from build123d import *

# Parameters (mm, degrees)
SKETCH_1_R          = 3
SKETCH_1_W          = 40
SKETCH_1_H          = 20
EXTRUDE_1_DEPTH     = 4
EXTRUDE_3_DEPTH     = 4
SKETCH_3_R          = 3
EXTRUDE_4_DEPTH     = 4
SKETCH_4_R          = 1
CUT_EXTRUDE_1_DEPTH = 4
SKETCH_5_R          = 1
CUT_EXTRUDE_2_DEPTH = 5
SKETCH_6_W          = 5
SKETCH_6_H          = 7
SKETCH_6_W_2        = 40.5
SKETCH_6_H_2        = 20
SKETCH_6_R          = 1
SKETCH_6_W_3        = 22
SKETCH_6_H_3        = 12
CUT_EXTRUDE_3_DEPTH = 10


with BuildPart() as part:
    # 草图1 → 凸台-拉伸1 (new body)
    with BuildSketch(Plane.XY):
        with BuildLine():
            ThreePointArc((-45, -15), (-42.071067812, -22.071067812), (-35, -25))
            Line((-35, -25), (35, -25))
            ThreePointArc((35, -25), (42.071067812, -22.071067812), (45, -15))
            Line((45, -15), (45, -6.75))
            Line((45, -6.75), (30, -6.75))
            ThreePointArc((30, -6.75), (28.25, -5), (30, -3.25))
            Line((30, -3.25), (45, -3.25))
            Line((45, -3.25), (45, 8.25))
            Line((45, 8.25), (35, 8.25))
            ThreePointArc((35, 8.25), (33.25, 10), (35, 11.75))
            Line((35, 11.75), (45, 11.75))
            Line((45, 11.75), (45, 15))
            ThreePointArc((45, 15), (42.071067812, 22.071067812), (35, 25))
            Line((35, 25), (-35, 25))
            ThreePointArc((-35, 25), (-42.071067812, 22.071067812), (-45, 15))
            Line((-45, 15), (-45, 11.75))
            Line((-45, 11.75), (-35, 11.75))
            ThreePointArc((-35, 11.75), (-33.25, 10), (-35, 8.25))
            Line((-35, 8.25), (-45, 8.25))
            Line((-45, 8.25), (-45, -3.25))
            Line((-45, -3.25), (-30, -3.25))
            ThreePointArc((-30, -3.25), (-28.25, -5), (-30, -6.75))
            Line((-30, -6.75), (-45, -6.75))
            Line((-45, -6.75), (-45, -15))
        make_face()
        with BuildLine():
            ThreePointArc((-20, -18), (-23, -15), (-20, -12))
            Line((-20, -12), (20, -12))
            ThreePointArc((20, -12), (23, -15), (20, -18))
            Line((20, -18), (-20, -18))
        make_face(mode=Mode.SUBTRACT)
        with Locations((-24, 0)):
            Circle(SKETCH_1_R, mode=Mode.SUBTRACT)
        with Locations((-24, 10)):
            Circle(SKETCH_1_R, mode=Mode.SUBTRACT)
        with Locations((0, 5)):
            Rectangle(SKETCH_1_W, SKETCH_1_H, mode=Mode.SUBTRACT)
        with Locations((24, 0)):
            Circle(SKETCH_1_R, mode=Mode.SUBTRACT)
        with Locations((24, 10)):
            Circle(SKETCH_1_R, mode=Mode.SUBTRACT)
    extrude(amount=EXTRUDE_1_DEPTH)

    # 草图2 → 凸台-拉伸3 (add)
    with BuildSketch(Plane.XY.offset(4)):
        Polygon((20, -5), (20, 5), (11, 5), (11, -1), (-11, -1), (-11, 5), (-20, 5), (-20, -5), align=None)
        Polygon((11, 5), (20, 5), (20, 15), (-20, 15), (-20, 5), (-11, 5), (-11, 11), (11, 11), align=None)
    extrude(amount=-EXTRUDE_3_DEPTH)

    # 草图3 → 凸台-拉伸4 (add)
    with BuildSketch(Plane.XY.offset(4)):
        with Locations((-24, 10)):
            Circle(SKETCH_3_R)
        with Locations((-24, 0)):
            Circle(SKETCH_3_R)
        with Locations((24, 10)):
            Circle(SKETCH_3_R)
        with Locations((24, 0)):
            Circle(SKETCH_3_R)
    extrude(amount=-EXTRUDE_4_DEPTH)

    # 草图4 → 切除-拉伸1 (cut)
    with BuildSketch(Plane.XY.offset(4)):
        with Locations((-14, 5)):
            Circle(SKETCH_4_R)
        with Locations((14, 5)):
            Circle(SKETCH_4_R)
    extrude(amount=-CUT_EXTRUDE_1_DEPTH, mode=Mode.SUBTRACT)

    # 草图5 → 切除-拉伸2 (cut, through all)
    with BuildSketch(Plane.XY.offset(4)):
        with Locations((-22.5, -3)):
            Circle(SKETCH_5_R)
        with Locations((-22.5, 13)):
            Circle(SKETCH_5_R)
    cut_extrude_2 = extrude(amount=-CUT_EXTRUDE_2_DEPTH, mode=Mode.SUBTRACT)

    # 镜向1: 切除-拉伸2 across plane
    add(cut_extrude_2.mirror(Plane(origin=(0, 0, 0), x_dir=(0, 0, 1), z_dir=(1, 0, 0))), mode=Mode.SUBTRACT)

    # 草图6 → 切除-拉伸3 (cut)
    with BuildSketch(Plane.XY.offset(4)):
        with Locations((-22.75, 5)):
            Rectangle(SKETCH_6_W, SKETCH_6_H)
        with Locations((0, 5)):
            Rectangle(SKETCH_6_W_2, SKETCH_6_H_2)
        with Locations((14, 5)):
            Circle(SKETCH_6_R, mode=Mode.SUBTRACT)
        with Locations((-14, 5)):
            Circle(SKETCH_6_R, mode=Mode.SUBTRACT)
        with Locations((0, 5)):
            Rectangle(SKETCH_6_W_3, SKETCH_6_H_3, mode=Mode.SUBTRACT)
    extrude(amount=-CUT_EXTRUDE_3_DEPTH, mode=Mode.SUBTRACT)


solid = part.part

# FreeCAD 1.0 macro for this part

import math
import FreeCAD as App
import Part
import Sketcher
from FreeCAD import Vector
Q = App.Units.Quantity

doc = App.newDocument("Part")
body = doc.addObject("PartDesign::Body", "Body")

sketch1 = body.newObject("Sketcher::SketchObject", "Sketch")
sketch1.AttachmentSupport = (doc.getObject("XY_Plane"), [""])
sketch1.MapMode = "FlatFace"
sketch1.addGeometry([
    Part.ArcOfCircle(Part.Circle(Vector(-35, -15, 0), Vector(0, 0, 1), 10), math.radians(180), math.radians(270)),
    Part.LineSegment(Vector(-35, -25, 0), Vector(35, -25, 0)),
    Part.ArcOfCircle(Part.Circle(Vector(35, -15, 0), Vector(0, 0, 1), 10), math.radians(-90), math.radians(0)),
    Part.LineSegment(Vector(45, -15, 0), Vector(45, -6.8, 0)),
    Part.LineSegment(Vector(45, -6.8, 0), Vector(30, -6.8, 0)),
    Part.ArcOfCircle(Part.Circle(Vector(30, -5, 0), Vector(0, 0, 1), 1.8), math.radians(90), math.radians(270)),
    Part.LineSegment(Vector(30, -3.2, 0), Vector(45, -3.2, 0)),
    Part.LineSegment(Vector(45, -3.2, 0), Vector(45, 8.2, 0)),
    Part.LineSegment(Vector(45, 8.2, 0), Vector(35, 8.2, 0)),
    Part.ArcOfCircle(Part.Circle(Vector(35, 10, 0), Vector(0, 0, 1), 1.8), math.radians(90), math.radians(270)),
    Part.LineSegment(Vector(35, 11.8, 0), Vector(45, 11.8, 0)),
    Part.LineSegment(Vector(45, 11.8, 0), Vector(45, 15, 0)),
    Part.ArcOfCircle(Part.Circle(Vector(35, 15, 0), Vector(0, 0, 1), 10), math.radians(0), math.radians(90)),
    Part.LineSegment(Vector(35, 25, 0), Vector(-35, 25, 0)),
    Part.ArcOfCircle(Part.Circle(Vector(-35, 15, 0), Vector(0, 0, 1), 10), math.radians(90), math.radians(180)),
    Part.LineSegment(Vector(-45, 15, 0), Vector(-45, 11.8, 0)),
    Part.LineSegment(Vector(-45, 11.8, 0), Vector(-35, 11.8, 0)),
    Part.ArcOfCircle(Part.Circle(Vector(-35, 10, 0), Vector(0, 0, 1), 1.8), math.radians(-90), math.radians(90)),
    Part.LineSegment(Vector(-35, 8.2, 0), Vector(-45, 8.2, 0)),
    Part.LineSegment(Vector(-45, 8.2, 0), Vector(-45, -3.2, 0)),
    Part.LineSegment(Vector(-45, -3.2, 0), Vector(-30, -3.2, 0)),
    Part.ArcOfCircle(Part.Circle(Vector(-30, -5, 0), Vector(0, 0, 1), 1.8), math.radians(-90), math.radians(90)),
    Part.LineSegment(Vector(-30, -6.8, 0), Vector(-45, -6.8, 0)),
    Part.LineSegment(Vector(-45, -6.8, 0), Vector(-45, -15, 0)),
    Part.LineSegment(Vector(20, -18, 0), Vector(-20, -18, 0)),
    Part.ArcOfCircle(Part.Circle(Vector(-20, -15, 0), Vector(0, 0, 1), 3), math.radians(90), math.radians(270)),
    Part.LineSegment(Vector(-20, -12, 0), Vector(20, -12, 0)),
    Part.ArcOfCircle(Part.Circle(Vector(20, -15, 0), Vector(0, 0, 1), 3), math.radians(-90), math.radians(90)),
    Part.Circle(Vector(-24, 0, 0), Vector(0, 0, 1), 3),
    Part.Circle(Vector(-24, 10, 0), Vector(0, 0, 1), 3),
    Part.LineSegment(Vector(20, -5, 0), Vector(-20, -5, 0)),
    Part.LineSegment(Vector(-20, -5, 0), Vector(-20, 15, 0)),
    Part.LineSegment(Vector(-20, 15, 0), Vector(20, 15, 0)),
    Part.LineSegment(Vector(20, 15, 0), Vector(20, -5, 0)),
    Part.Circle(Vector(24, 0, 0), Vector(0, 0, 1), 3),
    Part.Circle(Vector(24, 10, 0), Vector(0, 0, 1), 3),
], False)
sketch1.addConstraint([
    Sketcher.Constraint("Tangent", 0, 2, 1, 1),
    Sketcher.Constraint("Tangent", 1, 2, 2, 1),
    Sketcher.Constraint("Tangent", 2, 2, 3, 1),
    Sketcher.Constraint("Coincident", 3, 2, 4, 1),
    Sketcher.Constraint("Tangent", 4, 2, 5, 2),
    Sketcher.Constraint("Tangent", 5, 1, 6, 1),
    Sketcher.Constraint("Coincident", 6, 2, 7, 1),
    Sketcher.Constraint("Coincident", 7, 2, 8, 1),
    Sketcher.Constraint("Tangent", 8, 2, 9, 2),
    Sketcher.Constraint("Tangent", 9, 1, 10, 1),
    Sketcher.Constraint("Coincident", 10, 2, 11, 1),
    Sketcher.Constraint("Tangent", 11, 2, 12, 1),
    Sketcher.Constraint("Tangent", 12, 2, 13, 1),
    Sketcher.Constraint("Tangent", 13, 2, 14, 1),
    Sketcher.Constraint("Tangent", 14, 2, 15, 1),
    Sketcher.Constraint("Coincident", 15, 2, 16, 1),
    Sketcher.Constraint("Tangent", 16, 2, 17, 2),
    Sketcher.Constraint("Tangent", 17, 1, 18, 1),
    Sketcher.Constraint("Coincident", 18, 2, 19, 1),
    Sketcher.Constraint("Coincident", 19, 2, 20, 1),
    Sketcher.Constraint("Tangent", 20, 2, 21, 2),
    Sketcher.Constraint("Tangent", 21, 1, 22, 1),
    Sketcher.Constraint("Coincident", 22, 2, 23, 1),
    Sketcher.Constraint("Tangent", 23, 2, 0, 1),
    Sketcher.Constraint("Tangent", 24, 2, 25, 2),
    Sketcher.Constraint("Tangent", 25, 1, 26, 1),
    Sketcher.Constraint("Tangent", 26, 2, 27, 2),
    Sketcher.Constraint("Tangent", 27, 1, 24, 1),
    Sketcher.Constraint("Coincident", 30, 2, 31, 1),
    Sketcher.Constraint("Coincident", 31, 2, 32, 1),
    Sketcher.Constraint("Coincident", 32, 2, 33, 1),
    Sketcher.Constraint("Coincident", 33, 2, 30, 1),
    Sketcher.Constraint("Horizontal", 1),
    Sketcher.Constraint("Vertical", 3),
    Sketcher.Constraint("Horizontal", 4),
    Sketcher.Constraint("Horizontal", 6),
    Sketcher.Constraint("Vertical", 7),
    Sketcher.Constraint("Horizontal", 8),
    Sketcher.Constraint("Horizontal", 10),
    Sketcher.Constraint("Vertical", 11),
    Sketcher.Constraint("Horizontal", 13),
    Sketcher.Constraint("Vertical", 15),
    Sketcher.Constraint("Horizontal", 16),
    Sketcher.Constraint("Horizontal", 18),
    Sketcher.Constraint("Vertical", 19),
    Sketcher.Constraint("Horizontal", 20),
    Sketcher.Constraint("Horizontal", 22),
    Sketcher.Constraint("Vertical", 23),
    Sketcher.Constraint("Horizontal", 24),
    Sketcher.Constraint("Horizontal", 26),
    Sketcher.Constraint("Horizontal", 30),
    Sketcher.Constraint("Vertical", 31),
    Sketcher.Constraint("Horizontal", 32),
    Sketcher.Constraint("Vertical", 33),
    Sketcher.Constraint("Equal", 0, 2),
    Sketcher.Constraint("Equal", 5, 9),
    Sketcher.Constraint("Equal", 2, 12),
    Sketcher.Constraint("Equal", 12, 14),
    Sketcher.Constraint("Equal", 9, 17),
    Sketcher.Constraint("Equal", 17, 21),
    Sketcher.Constraint("Equal", 27, 28),
    Sketcher.Constraint("Equal", 28, 29),
    Sketcher.Constraint("Equal", 29, 34),
    Sketcher.Constraint("Equal", 34, 35),
    Sketcher.Constraint("Symmetric", 0, 3, 12, 3, -1, 1),
    Sketcher.Constraint("Symmetric", 28, 3, 34, 3, -1, 1),
    Sketcher.Constraint("Symmetric", 9, 3, 17, 3, -2),
    Sketcher.Constraint("Symmetric", 5, 3, 21, 3, -2),
    Sketcher.Constraint("Symmetric", 29, 3, 35, 3, -2),
    Sketcher.Constraint("PointOnObject", 28, 3, -1),
    Sketcher.Constraint("Horizontal", 2, 3, 25, 3),
    Sketcher.Constraint("Horizontal", 17, 3, 29, 3),
    Sketcher.Constraint("Horizontal", 21, 3, 30, 2),
    Sketcher.Constraint("Horizontal", 14, 2, 31, 2),
    Sketcher.Constraint("Vertical", 2, 3, 9, 3),
    Sketcher.Constraint("Vertical", 9, 3, 12, 3),
    Sketcher.Constraint("Vertical", 0, 3, 14, 3),
    Sketcher.Constraint("Vertical", 28, 3, 29, 3),
    Sketcher.Constraint("Vertical", 3, 2, 6, 2),
    Sketcher.Constraint("Vertical", 15, 2, 18, 2),
    Sketcher.Constraint("Vertical", 25, 1, 30, 2),
    Sketcher.Constraint("Vertical", 27, 1, 32, 2),
    Sketcher.Constraint("Diameter", 28, Q("6 mm")),
    Sketcher.Constraint("Radius", 0, Q("10 mm")),
    Sketcher.Constraint("DistanceX", 1, 1, 1, 2, Q("70 mm")),
    Sketcher.Constraint("DistanceX", 4, 2, 4, 1, Q("15 mm")),
    Sketcher.Constraint("DistanceX", 24, 2, 24, 1, Q("40 mm")),
    Sketcher.Constraint("DistanceY", 31, 1, 31, 2, Q("20 mm")),
    Sketcher.Constraint("Radius", 5, Q("1.75 mm")),
    Sketcher.Constraint("DistanceY", 7, 1, 7, 2, Q("11.5 mm")),
    Sketcher.Constraint("DistanceY", 0, 3, -1, 1, Q("15 mm")),
    Sketcher.Constraint("DistanceX", 25, 3, -1, 1, Q("20 mm")),
    Sketcher.Constraint("DistanceX", 28, 3, -1, 1, Q("24 mm")),
])
pad1 = body.newObject("PartDesign::Pad", "Pad")
pad1.Profile = sketch1
pad1.Length = 4

sketch2 = body.newObject("Sketcher::SketchObject", "Sketch001")
sketch2.AttachmentSupport = (doc.getObject("XY_Plane"), [""])
sketch2.MapMode = "FlatFace"
sketch2.AttachmentOffset = App.Placement(Vector(0, 0, 4), App.Rotation())
sketch2.addGeometry([
    Part.LineSegment(Vector(20, -5, 0), Vector(20, 15, 0)),
    Part.LineSegment(Vector(20, 15, 0), Vector(-20, 15, 0)),
    Part.LineSegment(Vector(-20, 15, 0), Vector(-20, -5, 0)),
    Part.LineSegment(Vector(-20, -5, 0), Vector(20, -5, 0)),
    Part.LineSegment(Vector(11, -1, 0), Vector(-11, -1, 0)),
    Part.LineSegment(Vector(-11, -1, 0), Vector(-11, 11, 0)),
    Part.LineSegment(Vector(-11, 11, 0), Vector(11, 11, 0)),
    Part.LineSegment(Vector(11, 11, 0), Vector(11, -1, 0)),
], False)
sketch2.addConstraint([
    Sketcher.Constraint("Coincident", 0, 2, 1, 1),
    Sketcher.Constraint("Coincident", 1, 2, 2, 1),
    Sketcher.Constraint("Coincident", 2, 2, 3, 1),
    Sketcher.Constraint("Coincident", 3, 2, 0, 1),
    Sketcher.Constraint("Coincident", 4, 2, 5, 1),
    Sketcher.Constraint("Coincident", 5, 2, 6, 1),
    Sketcher.Constraint("Coincident", 6, 2, 7, 1),
    Sketcher.Constraint("Coincident", 7, 2, 4, 1),
    Sketcher.Constraint("Vertical", 0),
    Sketcher.Constraint("Horizontal", 1),
    Sketcher.Constraint("Vertical", 2),
    Sketcher.Constraint("Horizontal", 3),
    Sketcher.Constraint("Horizontal", 4),
    Sketcher.Constraint("Vertical", 5),
    Sketcher.Constraint("Horizontal", 6),
    Sketcher.Constraint("Vertical", 7),
    Sketcher.Constraint("DistanceX", 1, 2, 1, 1, Q("40 mm")),
    Sketcher.Constraint("DistanceX", 4, 2, 4, 1, Q("22 mm")),
    Sketcher.Constraint("DistanceY", 0, 1, 0, 2, Q("20 mm")),
    Sketcher.Constraint("DistanceY", 5, 1, 5, 2, Q("12 mm")),
    Sketcher.Constraint("DistanceX", -1, 1, 0, 2, Q("20 mm")),
    Sketcher.Constraint("DistanceY", -1, 1, 0, 2, Q("15 mm")),
    Sketcher.Constraint("DistanceX", 4, 2, -1, 1, Q("11 mm")),
    Sketcher.Constraint("DistanceY", 4, 2, -1, 1, Q("1 mm")),
])
pad2 = body.newObject("PartDesign::Pad", "Pad001")
pad2.Profile = sketch2
pad2.Length = 4
pad2.Reversed = True

sketch3 = body.newObject("Sketcher::SketchObject", "Sketch002")
sketch3.AttachmentSupport = (doc.getObject("XY_Plane"), [""])
sketch3.MapMode = "FlatFace"
sketch3.AttachmentOffset = App.Placement(Vector(0, 0, 4), App.Rotation())
sketch3.addGeometry([
    Part.Circle(Vector(-24, 10, 0), Vector(0, 0, 1), 3),
    Part.Circle(Vector(-24, 0, 0), Vector(0, 0, 1), 3),
    Part.Circle(Vector(24, 10, 0), Vector(0, 0, 1), 3),
    Part.Circle(Vector(24, 0, 0), Vector(0, 0, 1), 3),
], False)
sketch3.addConstraint([
    Sketcher.Constraint("Equal", 0, 1),
    Sketcher.Constraint("Equal", 1, 2),
    Sketcher.Constraint("Equal", 2, 3),
    Sketcher.Constraint("Symmetric", 1, 3, 3, 3, -1, 1),
    Sketcher.Constraint("Symmetric", 0, 3, 2, 3, -2),
    Sketcher.Constraint("PointOnObject", 1, 3, -1),
    Sketcher.Constraint("Vertical", 0, 3, 1, 3),
    Sketcher.Constraint("Diameter", 0, Q("6 mm")),
    Sketcher.Constraint("DistanceX", 0, 3, -1, 1, Q("24 mm")),
    Sketcher.Constraint("DistanceY", -1, 1, 0, 3, Q("10 mm")),
])
pad3 = body.newObject("PartDesign::Pad", "Pad002")
pad3.Profile = sketch3
pad3.Length = 4
pad3.Reversed = True

sketch4 = body.newObject("Sketcher::SketchObject", "Sketch003")
sketch4.AttachmentSupport = (doc.getObject("XY_Plane"), [""])
sketch4.MapMode = "FlatFace"
sketch4.AttachmentOffset = App.Placement(Vector(0, 0, 4), App.Rotation())
sketch4.addGeometry([
    Part.Circle(Vector(-14, 5, 0), Vector(0, 0, 1), 1),
    Part.Circle(Vector(14, 5, 0), Vector(0, 0, 1), 1),
], False)
sketch4.addConstraint([
    Sketcher.Constraint("Equal", 0, 1),
    Sketcher.Constraint("Symmetric", 0, 3, 1, 3, -2),
    Sketcher.Constraint("Diameter", 0, Q("2 mm")),
    Sketcher.Constraint("DistanceX", 0, 3, -1, 1, Q("14 mm")),
    Sketcher.Constraint("DistanceY", -1, 1, 0, 3, Q("5 mm")),
])
pocket1 = body.newObject("PartDesign::Pocket", "Pocket")
pocket1.Profile = sketch4
pocket1.Length = 4

sketch5 = body.newObject("Sketcher::SketchObject", "Sketch004")
sketch5.AttachmentSupport = (doc.getObject("XY_Plane"), [""])
sketch5.MapMode = "FlatFace"
sketch5.AttachmentOffset = App.Placement(Vector(0, 0, 4), App.Rotation())
sketch5.addGeometry([
    Part.Circle(Vector(-22.5, -3, 0), Vector(0, 0, 1), 1),
    Part.Circle(Vector(-22.5, 13, 0), Vector(0, 0, 1), 1),
], False)
sketch5.addConstraint([
    Sketcher.Constraint("Equal", 0, 1),
    Sketcher.Constraint("Vertical", 0, 3, 1, 3),
    Sketcher.Constraint("Diameter", 0, Q("2 mm")),
    Sketcher.Constraint("DistanceY", 0, 3, -1, 1, Q("3 mm")),
    Sketcher.Constraint("DistanceY", -1, 1, 1, 3, Q("13 mm")),
    Sketcher.Constraint("DistanceX", 0, 3, -1, 1, Q("22.5 mm")),
])
pocket2 = body.newObject("PartDesign::Pocket", "Pocket001")
pocket2.Profile = sketch5
pocket2.Type = "ThroughAll"
doc.recompute()

mirrored = body.newObject("PartDesign::Mirrored", "Mirrored")
mirrored.Originals = [pocket2]
mirrored.MirrorPlane = (doc.getObject("YZ_Plane"), [""])
body.Tip = mirrored

sketch6 = body.newObject("Sketcher::SketchObject", "Sketch005")
sketch6.AttachmentSupport = (doc.getObject("XY_Plane"), [""])
sketch6.MapMode = "FlatFace"
sketch6.AttachmentOffset = App.Placement(Vector(0, 0, 4), App.Rotation())
sketch6.addGeometry([
    Part.LineSegment(Vector(-25.2, 8.5, 0), Vector(-25.2, 1.5, 0)),
    Part.LineSegment(Vector(-25.2, 1.5, 0), Vector(-20.2, 1.5, 0)),
    Part.LineSegment(Vector(-20.2, 1.5, 0), Vector(-20.2, -5, 0)),
    Part.LineSegment(Vector(-20.2, -5, 0), Vector(20.2, -5, 0)),
    Part.LineSegment(Vector(20.2, -5, 0), Vector(20.2, 15, 0)),
    Part.LineSegment(Vector(20.2, 15, 0), Vector(-20.2, 15, 0)),
    Part.LineSegment(Vector(-20.2, 15, 0), Vector(-20.2, 8.5, 0)),
    Part.LineSegment(Vector(-20.2, 8.5, 0), Vector(-25.2, 8.5, 0)),
    Part.Circle(Vector(-14, 5, 0), Vector(0, 0, 1), 1),
    Part.LineSegment(Vector(11, -1, 0), Vector(-11, -1, 0)),
    Part.LineSegment(Vector(-11, -1, 0), Vector(-11, 11, 0)),
    Part.LineSegment(Vector(-11, 11, 0), Vector(11, 11, 0)),
    Part.LineSegment(Vector(11, 11, 0), Vector(11, -1, 0)),
    Part.Circle(Vector(14, 5, 0), Vector(0, 0, 1), 1),
], False)
sketch6.addConstraint([
    Sketcher.Constraint("Coincident", 0, 2, 1, 1),
    Sketcher.Constraint("Coincident", 1, 2, 2, 1),
    Sketcher.Constraint("Coincident", 2, 2, 3, 1),
    Sketcher.Constraint("Coincident", 3, 2, 4, 1),
    Sketcher.Constraint("Coincident", 4, 2, 5, 1),
    Sketcher.Constraint("Coincident", 5, 2, 6, 1),
    Sketcher.Constraint("Coincident", 6, 2, 7, 1),
    Sketcher.Constraint("Coincident", 7, 2, 0, 1),
    Sketcher.Constraint("Coincident", 9, 2, 10, 1),
    Sketcher.Constraint("Coincident", 10, 2, 11, 1),
    Sketcher.Constraint("Coincident", 11, 2, 12, 1),
    Sketcher.Constraint("Coincident", 12, 2, 9, 1),
    Sketcher.Constraint("Vertical", 0),
    Sketcher.Constraint("Horizontal", 1),
    Sketcher.Constraint("Vertical", 2),
    Sketcher.Constraint("Horizontal", 3),
    Sketcher.Constraint("Vertical", 4),
    Sketcher.Constraint("Horizontal", 5),
    Sketcher.Constraint("Vertical", 6),
    Sketcher.Constraint("Horizontal", 7),
    Sketcher.Constraint("Horizontal", 9),
    Sketcher.Constraint("Vertical", 10),
    Sketcher.Constraint("Horizontal", 11),
    Sketcher.Constraint("Vertical", 12),
    Sketcher.Constraint("Equal", 8, 13),
    Sketcher.Constraint("Symmetric", 8, 3, 13, 3, -2),
    Sketcher.Constraint("Vertical", 2, 2, 5, 2),
    Sketcher.Constraint("Equal", 2, 6),
    Sketcher.Constraint("Diameter", 8, Q("2 mm")),
    Sketcher.Constraint("DistanceX", 1, 1, 1, 2, Q("5 mm")),
    Sketcher.Constraint("DistanceX", 9, 2, 9, 1, Q("22 mm")),
    Sketcher.Constraint("DistanceY", 0, 2, 0, 1, Q("7 mm")),
    Sketcher.Constraint("DistanceY", 4, 1, 4, 2, Q("20 mm")),
    Sketcher.Constraint("DistanceY", 10, 1, 10, 2, Q("12 mm")),
    Sketcher.Constraint("DistanceX", 3, 1, 3, 2, Q("40.5 mm")),
    Sketcher.Constraint("DistanceX", 8, 3, -1, 1, Q("14 mm")),
    Sketcher.Constraint("DistanceY", -1, 1, 8, 3, Q("5 mm")),
    Sketcher.Constraint("DistanceY", 2, 2, -1, 1, Q("5 mm")),
    Sketcher.Constraint("DistanceX", 9, 2, -1, 1, Q("11 mm")),
    Sketcher.Constraint("DistanceY", 9, 2, -1, 1, Q("1 mm")),
    Sketcher.Constraint("DistanceX", 0, 2, -1, 1, Q("25.25 mm")),
])
pocket3 = body.newObject("PartDesign::Pocket", "Pocket002")
pocket3.Profile = sketch6
pocket3.Length = 10

doc.recompute()
